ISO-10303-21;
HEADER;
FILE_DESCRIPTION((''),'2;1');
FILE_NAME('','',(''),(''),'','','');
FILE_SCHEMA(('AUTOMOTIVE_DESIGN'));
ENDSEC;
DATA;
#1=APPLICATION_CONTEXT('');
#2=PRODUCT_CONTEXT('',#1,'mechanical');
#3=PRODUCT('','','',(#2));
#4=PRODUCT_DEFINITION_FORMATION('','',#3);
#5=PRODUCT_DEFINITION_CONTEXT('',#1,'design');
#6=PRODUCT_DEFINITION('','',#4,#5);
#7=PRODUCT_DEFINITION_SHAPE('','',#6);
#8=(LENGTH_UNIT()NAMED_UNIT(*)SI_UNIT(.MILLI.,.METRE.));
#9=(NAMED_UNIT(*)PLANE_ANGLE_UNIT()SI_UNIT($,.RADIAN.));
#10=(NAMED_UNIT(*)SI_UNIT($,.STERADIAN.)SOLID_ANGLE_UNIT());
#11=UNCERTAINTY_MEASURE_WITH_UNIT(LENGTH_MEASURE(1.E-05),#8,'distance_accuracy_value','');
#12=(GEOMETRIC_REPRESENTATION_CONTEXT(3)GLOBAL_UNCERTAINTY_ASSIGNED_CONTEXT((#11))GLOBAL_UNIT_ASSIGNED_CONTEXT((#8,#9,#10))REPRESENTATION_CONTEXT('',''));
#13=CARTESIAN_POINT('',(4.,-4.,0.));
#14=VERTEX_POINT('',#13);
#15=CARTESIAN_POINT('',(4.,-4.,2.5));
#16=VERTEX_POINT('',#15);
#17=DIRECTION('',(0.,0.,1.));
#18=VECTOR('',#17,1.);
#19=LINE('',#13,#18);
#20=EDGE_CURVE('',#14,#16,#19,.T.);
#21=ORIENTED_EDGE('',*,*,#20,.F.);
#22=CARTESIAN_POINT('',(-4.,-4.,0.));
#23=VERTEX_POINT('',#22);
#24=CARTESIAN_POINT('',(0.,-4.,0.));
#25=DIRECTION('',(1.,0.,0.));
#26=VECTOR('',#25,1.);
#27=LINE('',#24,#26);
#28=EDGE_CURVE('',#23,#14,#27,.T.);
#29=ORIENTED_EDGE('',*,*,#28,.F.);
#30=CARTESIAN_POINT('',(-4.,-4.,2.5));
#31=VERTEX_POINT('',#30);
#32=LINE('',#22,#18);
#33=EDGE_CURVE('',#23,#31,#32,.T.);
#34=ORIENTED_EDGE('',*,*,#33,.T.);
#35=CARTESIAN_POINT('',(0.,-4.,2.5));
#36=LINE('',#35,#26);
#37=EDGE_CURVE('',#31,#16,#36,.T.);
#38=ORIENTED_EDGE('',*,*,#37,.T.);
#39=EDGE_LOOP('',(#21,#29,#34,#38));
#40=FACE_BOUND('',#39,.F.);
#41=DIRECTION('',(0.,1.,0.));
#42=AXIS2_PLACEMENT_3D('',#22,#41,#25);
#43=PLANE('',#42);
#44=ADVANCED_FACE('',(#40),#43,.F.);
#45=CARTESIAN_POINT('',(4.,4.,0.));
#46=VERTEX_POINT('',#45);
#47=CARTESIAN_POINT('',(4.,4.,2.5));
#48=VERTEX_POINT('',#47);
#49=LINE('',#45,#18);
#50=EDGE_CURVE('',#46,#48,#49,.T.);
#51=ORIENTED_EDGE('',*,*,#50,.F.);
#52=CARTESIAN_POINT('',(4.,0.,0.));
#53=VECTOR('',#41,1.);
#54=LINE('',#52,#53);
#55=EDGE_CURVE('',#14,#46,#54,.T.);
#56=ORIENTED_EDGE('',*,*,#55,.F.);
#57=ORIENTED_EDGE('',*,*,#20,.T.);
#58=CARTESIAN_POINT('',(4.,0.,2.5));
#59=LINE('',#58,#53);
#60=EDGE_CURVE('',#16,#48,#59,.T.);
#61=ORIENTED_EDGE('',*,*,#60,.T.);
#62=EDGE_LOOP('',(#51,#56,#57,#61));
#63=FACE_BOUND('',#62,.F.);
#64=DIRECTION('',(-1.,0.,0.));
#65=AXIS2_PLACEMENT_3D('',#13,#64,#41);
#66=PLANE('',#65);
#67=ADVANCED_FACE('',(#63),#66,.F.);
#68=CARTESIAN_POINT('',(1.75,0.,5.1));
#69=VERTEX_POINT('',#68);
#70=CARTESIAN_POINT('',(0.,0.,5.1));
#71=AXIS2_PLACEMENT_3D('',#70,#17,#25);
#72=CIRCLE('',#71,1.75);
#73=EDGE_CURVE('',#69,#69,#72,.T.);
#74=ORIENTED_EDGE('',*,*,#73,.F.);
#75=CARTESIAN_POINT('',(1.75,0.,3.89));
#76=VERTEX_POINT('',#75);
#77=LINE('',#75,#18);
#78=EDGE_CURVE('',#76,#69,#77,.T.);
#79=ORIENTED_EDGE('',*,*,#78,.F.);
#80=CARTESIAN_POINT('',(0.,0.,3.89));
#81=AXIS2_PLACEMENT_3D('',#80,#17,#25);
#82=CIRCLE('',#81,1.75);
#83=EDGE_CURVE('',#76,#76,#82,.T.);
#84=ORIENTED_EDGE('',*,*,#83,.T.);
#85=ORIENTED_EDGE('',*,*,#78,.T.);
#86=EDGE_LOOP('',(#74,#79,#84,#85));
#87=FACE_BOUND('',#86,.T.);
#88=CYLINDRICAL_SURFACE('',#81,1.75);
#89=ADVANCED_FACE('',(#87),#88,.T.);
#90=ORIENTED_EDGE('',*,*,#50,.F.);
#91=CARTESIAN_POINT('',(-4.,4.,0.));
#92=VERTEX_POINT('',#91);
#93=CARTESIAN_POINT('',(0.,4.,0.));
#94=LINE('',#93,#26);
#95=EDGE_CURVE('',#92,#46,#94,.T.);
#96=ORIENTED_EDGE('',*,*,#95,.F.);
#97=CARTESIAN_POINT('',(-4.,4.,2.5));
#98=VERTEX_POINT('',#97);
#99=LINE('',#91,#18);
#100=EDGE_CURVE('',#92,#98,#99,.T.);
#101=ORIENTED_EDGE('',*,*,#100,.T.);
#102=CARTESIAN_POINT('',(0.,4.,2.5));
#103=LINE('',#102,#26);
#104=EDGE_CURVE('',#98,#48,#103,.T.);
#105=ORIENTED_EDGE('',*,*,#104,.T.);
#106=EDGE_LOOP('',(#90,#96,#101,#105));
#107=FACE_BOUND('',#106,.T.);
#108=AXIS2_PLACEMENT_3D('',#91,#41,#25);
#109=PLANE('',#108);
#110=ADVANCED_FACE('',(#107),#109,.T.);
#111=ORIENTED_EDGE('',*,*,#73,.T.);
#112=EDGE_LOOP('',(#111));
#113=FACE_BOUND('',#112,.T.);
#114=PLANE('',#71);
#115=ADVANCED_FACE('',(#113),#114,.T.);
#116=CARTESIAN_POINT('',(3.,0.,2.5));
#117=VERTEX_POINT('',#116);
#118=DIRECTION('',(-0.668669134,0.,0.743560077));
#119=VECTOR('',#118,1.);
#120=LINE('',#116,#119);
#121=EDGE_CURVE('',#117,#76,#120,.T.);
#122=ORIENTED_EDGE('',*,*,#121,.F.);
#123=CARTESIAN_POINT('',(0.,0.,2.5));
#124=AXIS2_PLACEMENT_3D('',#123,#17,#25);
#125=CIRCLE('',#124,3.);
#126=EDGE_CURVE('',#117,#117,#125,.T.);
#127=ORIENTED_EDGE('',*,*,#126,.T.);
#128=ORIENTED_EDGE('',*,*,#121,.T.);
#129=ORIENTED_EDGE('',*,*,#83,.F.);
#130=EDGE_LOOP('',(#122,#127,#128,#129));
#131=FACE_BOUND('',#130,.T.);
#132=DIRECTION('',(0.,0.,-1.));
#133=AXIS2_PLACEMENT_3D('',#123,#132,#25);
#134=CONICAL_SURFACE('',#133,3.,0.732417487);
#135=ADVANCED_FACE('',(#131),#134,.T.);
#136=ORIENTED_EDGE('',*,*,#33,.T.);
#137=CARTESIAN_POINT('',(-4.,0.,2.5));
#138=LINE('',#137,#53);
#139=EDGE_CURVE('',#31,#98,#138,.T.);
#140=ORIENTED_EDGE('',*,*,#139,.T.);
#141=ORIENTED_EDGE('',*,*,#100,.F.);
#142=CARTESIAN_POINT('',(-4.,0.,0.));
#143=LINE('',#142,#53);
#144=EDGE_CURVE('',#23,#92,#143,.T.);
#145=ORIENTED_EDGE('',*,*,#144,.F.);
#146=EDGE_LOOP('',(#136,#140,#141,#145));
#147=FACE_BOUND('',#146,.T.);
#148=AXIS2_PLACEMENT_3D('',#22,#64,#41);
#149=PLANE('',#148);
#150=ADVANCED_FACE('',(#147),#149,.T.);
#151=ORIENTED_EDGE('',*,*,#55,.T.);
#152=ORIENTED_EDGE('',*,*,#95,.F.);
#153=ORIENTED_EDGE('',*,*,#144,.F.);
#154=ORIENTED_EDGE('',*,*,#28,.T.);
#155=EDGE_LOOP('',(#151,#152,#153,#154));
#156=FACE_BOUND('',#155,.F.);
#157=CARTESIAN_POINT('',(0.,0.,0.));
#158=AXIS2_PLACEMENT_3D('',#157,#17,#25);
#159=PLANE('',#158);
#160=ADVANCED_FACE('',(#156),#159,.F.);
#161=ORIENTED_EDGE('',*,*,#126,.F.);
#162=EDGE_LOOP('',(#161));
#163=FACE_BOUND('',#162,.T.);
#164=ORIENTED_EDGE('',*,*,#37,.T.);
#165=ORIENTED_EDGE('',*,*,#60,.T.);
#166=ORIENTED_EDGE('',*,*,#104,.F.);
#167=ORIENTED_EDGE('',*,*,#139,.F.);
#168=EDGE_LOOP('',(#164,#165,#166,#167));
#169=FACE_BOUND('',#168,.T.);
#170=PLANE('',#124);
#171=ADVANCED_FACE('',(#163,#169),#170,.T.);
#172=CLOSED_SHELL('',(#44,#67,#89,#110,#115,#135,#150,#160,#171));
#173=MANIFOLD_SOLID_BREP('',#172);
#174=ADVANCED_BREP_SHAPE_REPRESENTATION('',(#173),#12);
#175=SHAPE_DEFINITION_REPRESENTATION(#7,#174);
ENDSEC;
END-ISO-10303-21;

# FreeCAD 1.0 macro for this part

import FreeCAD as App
import Part
import Sketcher


def add_polygon(sketch, points):
    """Adds a closed chain of lines whose ends are joined by coincident constraints."""
    first, n = sketch.GeometryCount, len(points)
    for a, b in zip(points, points[1:] + points[:1]):
        sketch.addGeometry(Part.LineSegment(App.Vector(*a, 0), App.Vector(*b, 0)), False)
    for i in range(n):
        sketch.addConstraint(Sketcher.Constraint("Coincident", first + i, 2, first + (i + 1) % n, 1))

doc = App.newDocument("Part")
body = doc.addObject("PartDesign::Body", "Body")

sketch1 = body.newObject("Sketcher::SketchObject", "Sketch")
sketch1.AttachmentSupport = (doc.getObject("XY_Plane"), [""])
sketch1.MapMode = "FlatFace"
add_polygon(sketch1, [(-4, 4), (-4, -4), (4, -4), (4, 4)])
sketch1.addConstraint([
    Sketcher.Constraint("Vertical", 0),
    Sketcher.Constraint("Horizontal", 1),
    Sketcher.Constraint("Vertical", 2),
    Sketcher.Constraint("Horizontal", 3),
    Sketcher.Constraint("Symmetric", 0, 2, 2, 2, -1, 1),
    Sketcher.Constraint("Equal", 3, 0),
    Sketcher.Constraint("DistanceX", 1, 1, 1, 2, 8.0),
])
pad1 = body.newObject("PartDesign::Pad", "Pad")
pad1.Profile = sketch1
pad1.Length = 2.5

sketch2 = body.newObject("Sketcher::SketchObject", "Sketch001")
sketch2.AttachmentSupport = (doc.getObject("XZ_Plane"), [""])
sketch2.MapMode = "FlatFace"
add_polygon(sketch2, [(0, 5.1), (0, 2.5), (3, 2.5), (1.75, 3.89), (1.75, 5.1)])
sketch2.addConstraint([
    Sketcher.Constraint("Vertical", 0),
    Sketcher.Constraint("Horizontal", 1),
    Sketcher.Constraint("Vertical", 3),
    Sketcher.Constraint("Horizontal", 4),
    Sketcher.Constraint("PointOnObject", 0, 2, -2),
    Sketcher.Constraint("DistanceX", 1, 1, 1, 2, 3.0),
    Sketcher.Constraint("DistanceY", 0, 2, 0, 1, 2.6),
    Sketcher.Constraint("DistanceX", 4, 2, 4, 1, 1.75),
    Sketcher.Constraint("DistanceY", 3, 1, 3, 2, 1.21),
    Sketcher.Constraint("DistanceY", -1, 1, 0, 2, 2.5),
])
revolution = body.newObject("PartDesign::Revolution", "Revolution")
revolution.Profile = sketch2
revolution.ReferenceAxis = (sketch2, ["V_Axis"])
revolution.Angle = 360

doc.recompute()
